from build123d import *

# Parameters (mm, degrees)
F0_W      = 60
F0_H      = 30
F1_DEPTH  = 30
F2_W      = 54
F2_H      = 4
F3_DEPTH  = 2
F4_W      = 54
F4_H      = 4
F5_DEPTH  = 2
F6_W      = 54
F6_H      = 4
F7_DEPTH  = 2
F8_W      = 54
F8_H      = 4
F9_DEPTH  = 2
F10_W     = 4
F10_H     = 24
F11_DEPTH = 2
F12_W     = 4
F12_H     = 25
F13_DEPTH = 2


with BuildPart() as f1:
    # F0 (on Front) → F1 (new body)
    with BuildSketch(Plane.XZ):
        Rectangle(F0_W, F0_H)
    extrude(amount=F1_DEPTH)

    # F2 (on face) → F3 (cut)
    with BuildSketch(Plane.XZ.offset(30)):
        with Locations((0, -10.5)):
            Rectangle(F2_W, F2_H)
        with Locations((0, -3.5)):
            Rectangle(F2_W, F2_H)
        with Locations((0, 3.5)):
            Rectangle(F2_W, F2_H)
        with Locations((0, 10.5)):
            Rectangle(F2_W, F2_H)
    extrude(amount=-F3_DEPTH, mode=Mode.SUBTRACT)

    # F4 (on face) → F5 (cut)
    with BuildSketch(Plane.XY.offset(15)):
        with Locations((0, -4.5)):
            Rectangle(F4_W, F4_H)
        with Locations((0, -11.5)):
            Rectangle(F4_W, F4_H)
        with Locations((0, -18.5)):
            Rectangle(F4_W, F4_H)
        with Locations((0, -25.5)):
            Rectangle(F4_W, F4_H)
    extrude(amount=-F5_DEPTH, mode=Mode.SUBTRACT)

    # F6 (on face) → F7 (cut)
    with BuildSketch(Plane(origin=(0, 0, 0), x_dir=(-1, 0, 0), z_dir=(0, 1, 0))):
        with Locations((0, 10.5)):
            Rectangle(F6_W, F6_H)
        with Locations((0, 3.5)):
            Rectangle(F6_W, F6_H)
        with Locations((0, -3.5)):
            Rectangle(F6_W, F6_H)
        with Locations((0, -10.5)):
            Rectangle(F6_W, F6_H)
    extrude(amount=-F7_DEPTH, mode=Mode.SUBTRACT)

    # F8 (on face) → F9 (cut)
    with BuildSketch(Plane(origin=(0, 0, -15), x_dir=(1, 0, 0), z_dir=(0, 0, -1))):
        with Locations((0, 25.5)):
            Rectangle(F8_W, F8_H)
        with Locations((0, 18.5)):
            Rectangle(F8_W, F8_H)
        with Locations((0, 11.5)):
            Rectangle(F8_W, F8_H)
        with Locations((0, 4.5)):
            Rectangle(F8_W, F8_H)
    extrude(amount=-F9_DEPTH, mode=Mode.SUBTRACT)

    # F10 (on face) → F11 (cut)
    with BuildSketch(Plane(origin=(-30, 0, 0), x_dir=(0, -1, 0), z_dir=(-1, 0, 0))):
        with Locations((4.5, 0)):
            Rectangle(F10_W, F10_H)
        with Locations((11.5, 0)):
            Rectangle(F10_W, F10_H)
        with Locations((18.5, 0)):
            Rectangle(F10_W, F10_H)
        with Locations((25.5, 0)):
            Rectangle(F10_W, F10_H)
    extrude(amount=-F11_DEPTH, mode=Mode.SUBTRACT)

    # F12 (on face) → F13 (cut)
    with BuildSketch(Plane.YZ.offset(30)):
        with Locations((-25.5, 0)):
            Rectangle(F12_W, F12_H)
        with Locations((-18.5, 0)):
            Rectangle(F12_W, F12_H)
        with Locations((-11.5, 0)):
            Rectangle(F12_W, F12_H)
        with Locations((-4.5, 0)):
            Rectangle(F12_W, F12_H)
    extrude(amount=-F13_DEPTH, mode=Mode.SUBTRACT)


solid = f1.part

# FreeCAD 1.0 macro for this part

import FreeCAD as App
import Part
import Sketcher
from FreeCAD import Vector

doc = App.newDocument("Part")
body = doc.addObject("PartDesign::Body", "Body")

# Sketch on XZ plane
sketch1 = doc.addObject("Sketcher::SketchObject", "Sketch")
body.addObject(sketch1)
sketch1.AttachmentSupport = (doc.XZ_Plane, [""])
sketch1.MapMode = "FlatFace"
sketch1.addGeometry([
    Part.LineSegment(Vector(-30, 15, 0), Vector(-30, -15, 0)),
    Part.LineSegment(Vector(-30, -15, 0), Vector(30, -15, 0)),
    Part.LineSegment(Vector(30, -15, 0), Vector(30, 15, 0)),
    Part.LineSegment(Vector(30, 15, 0), Vector(-30, 15, 0)),
], False)
sketch1.addConstraint([
    Sketcher.Constraint("Coincident", 0, 2, 1, 1),
    Sketcher.Constraint("Coincident", 1, 2, 2, 1),
    Sketcher.Constraint("Coincident", 2, 2, 3, 1),
    Sketcher.Constraint("Coincident", 3, 2, 0, 1),
    Sketcher.Constraint("Vertical", 0),
    Sketcher.Constraint("Horizontal", 1),
    Sketcher.Constraint("Vertical", 2),
    Sketcher.Constraint("Horizontal", 3),
    Sketcher.Constraint("Symmetric", 0, 2, 2, 2, -1, 1),
    Sketcher.Constraint("DistanceX", 1, 1, 1, 2, 60.0),
    Sketcher.Constraint("DistanceY", 0, 2, 0, 1, 30.0),
])
pad1 = doc.addObject("PartDesign::Pad", "Pad")
body.addObject(pad1)
pad1.Profile = sketch1
pad1.Length = 30

# Sketch on XZ plane
sketch2 = doc.addObject("Sketcher::SketchObject", "Sketch001")
body.addObject(sketch2)
sketch2.AttachmentSupport = (doc.XZ_Plane, [""])
sketch2.MapMode = "FlatFace"
sketch2.AttachmentOffset = App.Placement(Vector(0, 0, 30), App.Rotation())
sketch2.addGeometry([
    Part.LineSegment(Vector(-27, -8.5, 0), Vector(-27, -12.5, 0)),  # 0
    Part.LineSegment(Vector(-27, -12.5, 0), Vector(27, -12.5, 0)),  # 1
    Part.LineSegment(Vector(27, -12.5, 0), Vector(27, -8.5, 0)),  # 2
    Part.LineSegment(Vector(27, -8.5, 0), Vector(-27, -8.5, 0)),  # 3
    Part.LineSegment(Vector(-27, -1.5, 0), Vector(-27, -5.5, 0)),  # 4
    Part.LineSegment(Vector(-27, -5.5, 0), Vector(27, -5.5, 0)),  # 5
    Part.LineSegment(Vector(27, -5.5, 0), Vector(27, -1.5, 0)),  # 6
    Part.LineSegment(Vector(27, -1.5, 0), Vector(-27, -1.5, 0)),  # 7
    Part.LineSegment(Vector(-27, 5.5, 0), Vector(-27, 1.5, 0)),  # 8
    Part.LineSegment(Vector(-27, 1.5, 0), Vector(27, 1.5, 0)),  # 9
    Part.LineSegment(Vector(27, 1.5, 0), Vector(27, 5.5, 0)),  # 10
    Part.LineSegment(Vector(27, 5.5, 0), Vector(-27, 5.5, 0)),  # 11
    Part.LineSegment(Vector(-27, 12.5, 0), Vector(-27, 8.5, 0)),  # 12
    Part.LineSegment(Vector(-27, 8.5, 0), Vector(27, 8.5, 0)),  # 13
    Part.LineSegment(Vector(27, 8.5, 0), Vector(27, 12.5, 0)),  # 14
    Part.LineSegment(Vector(27, 12.5, 0), Vector(-27, 12.5, 0)),  # 15
], False)
sketch2.addConstraint([
    Sketcher.Constraint("Coincident", 0, 2, 1, 1),
    Sketcher.Constraint("Coincident", 1, 2, 2, 1),
    Sketcher.Constraint("Coincident", 2, 2, 3, 1),
    Sketcher.Constraint("Coincident", 3, 2, 0, 1),
    Sketcher.Constraint("Coincident", 4, 2, 5, 1),
    Sketcher.Constraint("Coincident", 5, 2, 6, 1),
    Sketcher.Constraint("Coincident", 6, 2, 7, 1),
    Sketcher.Constraint("Coincident", 7, 2, 4, 1),
    Sketcher.Constraint("Coincident", 8, 2, 9, 1),
    Sketcher.Constraint("Coincident", 9, 2, 10, 1),
    Sketcher.Constraint("Coincident", 10, 2, 11, 1),
    Sketcher.Constraint("Coincident", 11, 2, 8, 1),
    Sketcher.Constraint("Coincident", 12, 2, 13, 1),
    Sketcher.Constraint("Coincident", 13, 2, 14, 1),
    Sketcher.Constraint("Coincident", 14, 2, 15, 1),
    Sketcher.Constraint("Coincident", 15, 2, 12, 1),
    Sketcher.Constraint("Vertical", 0),
    Sketcher.Constraint("Horizontal", 1),
    Sketcher.Constraint("Vertical", 2),
    Sketcher.Constraint("Horizontal", 3),
    Sketcher.Constraint("Vertical", 4),
    Sketcher.Constraint("Horizontal", 5),
    Sketcher.Constraint("Vertical", 6),
    Sketcher.Constraint("Horizontal", 7),
    Sketcher.Constraint("Vertical", 8),
    Sketcher.Constraint("Horizontal", 9),
    Sketcher.Constraint("Vertical", 10),
    Sketcher.Constraint("Horizontal", 11),
    Sketcher.Constraint("Vertical", 12),
    Sketcher.Constraint("Horizontal", 13),
    Sketcher.Constraint("Vertical", 14),
    Sketcher.Constraint("Horizontal", 15),
    Sketcher.Constraint("Symmetric", 6, 2, 8, 2, -1, 1),
    Sketcher.Constraint("Symmetric", 4, 2, 10, 2, -1, 1),
    Sketcher.Constraint("Symmetric", 2, 2, 12, 2, -1, 1),
    Sketcher.Constraint("Symmetric", 0, 2, 14, 2, -1, 1),
    Sketcher.Constraint("Vertical", 3, 2, 4, 2),
    Sketcher.Constraint("Vertical", 2, 2, 5, 2),
    Sketcher.Constraint("Vertical", 7, 2, 8, 2),
    Sketcher.Constraint("Equal", 2, 4),
    Sketcher.Constraint("DistanceX", 1, 1, 1, 2, 54.0),
    Sketcher.Constraint("DistanceY", 0, 2, 0, 1, 4.0),
    Sketcher.Constraint("DistanceY", 3, 2, 4, 2, 3.0),
    Sketcher.Constraint("DistanceY", 7, 2, 8, 2, 3.0),
])
pocket1 = doc.addObject("PartDesign::Pocket", "Pocket")
body.addObject(pocket1)
pocket1.Profile = sketch2
pocket1.Length = 2

# Sketch on XY plane
sketch3 = doc.addObject("Sketcher::SketchObject", "Sketch002")
body.addObject(sketch3)
sketch3.AttachmentSupport = (doc.XY_Plane, [""])
sketch3.MapMode = "FlatFace"
sketch3.AttachmentOffset = App.Placement(Vector(0, 0, 15), App.Rotation())
sketch3.addGeometry([
    Part.LineSegment(Vector(-27, -2.5, 0), Vector(-27, -6.5, 0)),  # 0
    Part.LineSegment(Vector(-27, -6.5, 0), Vector(27, -6.5, 0)),  # 1
    Part.LineSegment(Vector(27, -6.5, 0), Vector(27, -2.5, 0)),  # 2
    Part.LineSegment(Vector(27, -2.5, 0), Vector(-27, -2.5, 0)),  # 3
    Part.LineSegment(Vector(-27, -9.5, 0), Vector(-27, -13.5, 0)),  # 4
    Part.LineSegment(Vector(-27, -13.5, 0), Vector(27, -13.5, 0)),  # 5
    Part.LineSegment(Vector(27, -13.5, 0), Vector(27, -9.5, 0)),  # 6
    Part.LineSegment(Vector(27, -9.5, 0), Vector(-27, -9.5, 0)),  # 7
    Part.LineSegment(Vector(-27, -16.5, 0), Vector(-27, -20.5, 0)),  # 8
    Part.LineSegment(Vector(-27, -20.5, 0), Vector(27, -20.5, 0)),  # 9
    Part.LineSegment(Vector(27, -20.5, 0), Vector(27, -16.5, 0)),  # 10
    Part.LineSegment(Vector(27, -16.5, 0), Vector(-27, -16.5, 0)),  # 11
    Part.LineSegment(Vector(-27, -23.5, 0), Vector(-27, -27.5, 0)),  # 12
    Part.LineSegment(Vector(-27, -27.5, 0), Vector(27, -27.5, 0)),  # 13
    Part.LineSegment(Vector(27, -27.5, 0), Vector(27, -23.5, 0)),  # 14
    Part.LineSegment(Vector(27, -23.5, 0), Vector(-27, -23.5, 0)),  # 15
], False)
sketch3.addConstraint([
    Sketcher.Constraint("Coincident", 0, 2, 1, 1),
    Sketcher.Constraint("Coincident", 1, 2, 2, 1),
    Sketcher.Constraint("Coincident", 2, 2, 3, 1),
    Sketcher.Constraint("Coincident", 3, 2, 0, 1),
    Sketcher.Constraint("Coincident", 4, 2, 5, 1),
    Sketcher.Constraint("Coincident", 5, 2, 6, 1),
    Sketcher.Constraint("Coincident", 6, 2, 7, 1),
    Sketcher.Constraint("Coincident", 7, 2, 4, 1),
    Sketcher.Constraint("Coincident", 8, 2, 9, 1),
    Sketcher.Constraint("Coincident", 9, 2, 10, 1),
    Sketcher.Constraint("Coincident", 10, 2, 11, 1),
    Sketcher.Constraint("Coincident", 11, 2, 8, 1),
    Sketcher.Constraint("Coincident", 12, 2, 13, 1),
    Sketcher.Constraint("Coincident", 13, 2, 14, 1),
    Sketcher.Constraint("Coincident", 14, 2, 15, 1),
    Sketcher.Constraint("Coincident", 15, 2, 12, 1),
    Sketcher.Constraint("Vertical", 0),
    Sketcher.Constraint("Horizontal", 1),
    Sketcher.Constraint("Vertical", 2),
    Sketcher.Constraint("Horizontal", 3),
    Sketcher.Constraint("Vertical", 4),
    Sketcher.Constraint("Horizontal", 5),
    Sketcher.Constraint("Vertical", 6),
    Sketcher.Constraint("Horizontal", 7),
    Sketcher.Constraint("Vertical", 8),
    Sketcher.Constraint("Horizontal", 9),
    Sketcher.Constraint("Vertical", 10),
    Sketcher.Constraint("Horizontal", 11),
    Sketcher.Constraint("Vertical", 12),
    Sketcher.Constraint("Horizontal", 13),
    Sketcher.Constraint("Vertical", 14),
    Sketcher.Constraint("Horizontal", 15),
    Sketcher.Constraint("Vertical", 3, 2, 4, 2),
    Sketcher.Constraint("Vertical", 2, 2, 5, 2),
    Sketcher.Constraint("Vertical", 7, 2, 8, 2),
    Sketcher.Constraint("Vertical", 6, 2, 9, 2),
    Sketcher.Constraint("Vertical", 11, 2, 12, 2),
    Sketcher.Constraint("Vertical", 10, 2, 13, 2),
    Sketcher.Constraint("Equal", 2, 4),
    Sketcher.Constraint("Equal", 6, 8),
    Sketcher.Constraint("Equal", 10, 12),
    Sketcher.Constraint("DistanceX", 1, 1, 1, 2, 54.0),
    Sketcher.Constraint("DistanceY", 0, 2, 0, 1, 4.0),
    Sketcher.Constraint("DistanceX", 0, 2, -1, 1, 27.0),
    Sketcher.Constraint("DistanceY", 4, 2, 0, 2, 7.0),
    Sketcher.Constraint("DistanceY", 8, 2, 4, 2, 7.0),
    Sketcher.Constraint("DistanceY", 12, 2, 8, 2, 7.0),
    Sketcher.Constraint("DistanceY", 0, 2, -1, 1, 6.5),
])
pocket2 = doc.addObject("PartDesign::Pocket", "Pocket001")
body.addObject(pocket2)
pocket2.Profile = sketch3
pocket2.Length = 2

# Sketch on XZ plane
sketch4 = doc.addObject("Sketcher::SketchObject", "Sketch003")
body.addObject(sketch4)
sketch4.AttachmentSupport = (doc.XZ_Plane, [""])
sketch4.MapMode = "FlatFace"
sketch4.addGeometry([
    Part.LineSegment(Vector(27, 12.5, 0), Vector(27, 8.5, 0)),  # 0
    Part.LineSegment(Vector(27, 8.5, 0), Vector(-27, 8.5, 0)),  # 1
    Part.LineSegment(Vector(-27, 8.5, 0), Vector(-27, 12.5, 0)),  # 2
    Part.LineSegment(Vector(-27, 12.5, 0), Vector(27, 12.5, 0)),  # 3
    Part.LineSegment(Vector(27, 5.5, 0), Vector(27, 1.5, 0)),  # 4
    Part.LineSegment(Vector(27, 1.5, 0), Vector(-27, 1.5, 0)),  # 5
    Part.LineSegment(Vector(-27, 1.5, 0), Vector(-27, 5.5, 0)),  # 6
    Part.LineSegment(Vector(-27, 5.5, 0), Vector(27, 5.5, 0)),  # 7
    Part.LineSegment(Vector(27, -1.5, 0), Vector(27, -5.5, 0)),  # 8
    Part.LineSegment(Vector(27, -5.5, 0), Vector(-27, -5.5, 0)),  # 9
    Part.LineSegment(Vector(-27, -5.5, 0), Vector(-27, -1.5, 0)),  # 10
    Part.LineSegment(Vector(-27, -1.5, 0), Vector(27, -1.5, 0)),  # 11
    Part.LineSegment(Vector(27, -8.5, 0), Vector(27, -12.5, 0)),  # 12
    Part.LineSegment(Vector(27, -12.5, 0), Vector(-27, -12.5, 0)),  # 13
    Part.LineSegment(Vector(-27, -12.5, 0), Vector(-27, -8.5, 0)),  # 14
    Part.LineSegment(Vector(-27, -8.5, 0), Vector(27, -8.5, 0)),  # 15
], False)
sketch4.addConstraint([
    Sketcher.Constraint("Coincident", 0, 2, 1, 1),
    Sketcher.Constraint("Coincident", 1, 2, 2, 1),
    Sketcher.Constraint("Coincident", 2, 2, 3, 1),
    Sketcher.Constraint("Coincident", 3, 2, 0, 1),
    Sketcher.Constraint("Coincident", 4, 2, 5, 1),
    Sketcher.Constraint("Coincident", 5, 2, 6, 1),
    Sketcher.Constraint("Coincident", 6, 2, 7, 1),
    Sketcher.Constraint("Coincident", 7, 2, 4, 1),
    Sketcher.Constraint("Coincident", 8, 2, 9, 1),
    Sketcher.Constraint("Coincident", 9, 2, 10, 1),
    Sketcher.Constraint("Coincident", 10, 2, 11, 1),
    Sketcher.Constraint("Coincident", 11, 2, 8, 1),
    Sketcher.Constraint("Coincident", 12, 2, 13, 1),
    Sketcher.Constraint("Coincident", 13, 2, 14, 1),
    Sketcher.Constraint("Coincident", 14, 2, 15, 1),
    Sketcher.Constraint("Coincident", 15, 2, 12, 1),
    Sketcher.Constraint("Vertical", 0),
    Sketcher.Constraint("Horizontal", 1),
    Sketcher.Constraint("Vertical", 2),
    Sketcher.Constraint("Horizontal", 3),
    Sketcher.Constraint("Vertical", 4),
    Sketcher.Constraint("Horizontal", 5),
    Sketcher.Constraint("Vertical", 6),
    Sketcher.Constraint("Horizontal", 7),
    Sketcher.Constraint("Vertical", 8),
    Sketcher.Constraint("Horizontal", 9),
    Sketcher.Constraint("Vertical", 10),
    Sketcher.Constraint("Horizontal", 11),
    Sketcher.Constraint("Vertical", 12),
    Sketcher.Constraint("Horizontal", 13),
    Sketcher.Constraint("Vertical", 14),
    Sketcher.Constraint("Horizontal", 15),
    Sketcher.Constraint("Symmetric", 6, 2, 8, 2, -1, 1),
    Sketcher.Constraint("Symmetric", 4, 2, 10, 2, -1, 1),
    Sketcher.Constraint("Symmetric", 2, 2, 12, 2, -1, 1),
    Sketcher.Constraint("Symmetric", 0, 2, 14, 2, -1, 1),
    Sketcher.Constraint("Vertical", 3, 2, 4, 2),
    Sketcher.Constraint("Vertical", 2, 2, 5, 2),
    Sketcher.Constraint("Vertical", 7, 2, 8, 2),
    Sketcher.Constraint("Equal", 2, 4),
    Sketcher.Constraint("DistanceX", 1, 2, 1, 1, 54.0),
    Sketcher.Constraint("DistanceY", 0, 2, 0, 1, 4.0),
    Sketcher.Constraint("DistanceY", 4, 2, 0, 2, 7.0),
    Sketcher.Constraint("DistanceY", 8, 2, 4, 2, 7.0),
])
pocket3 = doc.addObject("PartDesign::Pocket", "Pocket002")
body.addObject(pocket3)
pocket3.Profile = sketch4
pocket3.Length = 2
pocket3.Reversed = True

# Sketch on XY plane
sketch5 = doc.addObject("Sketcher::SketchObject", "Sketch004")
body.addObject(sketch5)
sketch5.AttachmentSupport = (doc.XY_Plane, [""])
sketch5.MapMode = "FlatFace"
sketch5.AttachmentOffset = App.Placement(Vector(0, 0, -15), App.Rotation())
sketch5.addGeometry([
    Part.LineSegment(Vector(-27, -27.5, 0), Vector(-27, -23.5, 0)),  # 0
    Part.LineSegment(Vector(-27, -23.5, 0), Vector(27, -23.5, 0)),  # 1
    Part.LineSegment(Vector(27, -23.5, 0), Vector(27, -27.5, 0)),  # 2
    Part.LineSegment(Vector(27, -27.5, 0), Vector(-27, -27.5, 0)),  # 3
    Part.LineSegment(Vector(-27, -20.5, 0), Vector(-27, -16.5, 0)),  # 4
    Part.LineSegment(Vector(-27, -16.5, 0), Vector(27, -16.5, 0)),  # 5
    Part.LineSegment(Vector(27, -16.5, 0), Vector(27, -20.5, 0)),  # 6
    Part.LineSegment(Vector(27, -20.5, 0), Vector(-27, -20.5, 0)),  # 7
    Part.LineSegment(Vector(-27, -13.5, 0), Vector(-27, -9.5, 0)),  # 8
    Part.LineSegment(Vector(-27, -9.5, 0), Vector(27, -9.5, 0)),  # 9
    Part.LineSegment(Vector(27, -9.5, 0), Vector(27, -13.5, 0)),  # 10
    Part.LineSegment(Vector(27, -13.5, 0), Vector(-27, -13.5, 0)),  # 11
    Part.LineSegment(Vector(-27, -6.5, 0), Vector(-27, -2.5, 0)),  # 12
    Part.LineSegment(Vector(-27, -2.5, 0), Vector(27, -2.5, 0)),  # 13
    Part.LineSegment(Vector(27, -2.5, 0), Vector(27, -6.5, 0)),  # 14
    Part.LineSegment(Vector(27, -6.5, 0), Vector(-27, -6.5, 0)),  # 15
], False)
sketch5.addConstraint([
    Sketcher.Constraint("Coincident", 0, 2, 1, 1),
    Sketcher.Constraint("Coincident", 1, 2, 2, 1),
    Sketcher.Constraint("Coincident", 2, 2, 3, 1),
    Sketcher.Constraint("Coincident", 3, 2, 0, 1),
    Sketcher.Constraint("Coincident", 4, 2, 5, 1),
    Sketcher.Constraint("Coincident", 5, 2, 6, 1),
    Sketcher.Constraint("Coincident", 6, 2, 7, 1),
    Sketcher.Constraint("Coincident", 7, 2, 4, 1),
    Sketcher.Constraint("Coincident", 8, 2, 9, 1),
    Sketcher.Constraint("Coincident", 9, 2, 10, 1),
    Sketcher.Constraint("Coincident", 10, 2, 11, 1),
    Sketcher.Constraint("Coincident", 11, 2, 8, 1),
    Sketcher.Constraint("Coincident", 12, 2, 13, 1),
    Sketcher.Constraint("Coincident", 13, 2, 14, 1),
    Sketcher.Constraint("Coincident", 14, 2, 15, 1),
    Sketcher.Constraint("Coincident", 15, 2, 12, 1),
    Sketcher.Constraint("Vertical", 0),
    Sketcher.Constraint("Horizontal", 1),
    Sketcher.Constraint("Vertical", 2),
    Sketcher.Constraint("Horizontal", 3),
    Sketcher.Constraint("Vertical", 4),
    Sketcher.Constraint("Horizontal", 5),
    Sketcher.Constraint("Vertical", 6),
    Sketcher.Constraint("Horizontal", 7),
    Sketcher.Constraint("Vertical", 8),
    Sketcher.Constraint("Horizontal", 9),
    Sketcher.Constraint("Vertical", 10),
    Sketcher.Constraint("Horizontal", 11),
    Sketcher.Constraint("Vertical", 12),
    Sketcher.Constraint("Horizontal", 13),
    Sketcher.Constraint("Vertical", 14),
    Sketcher.Constraint("Horizontal", 15),
    Sketcher.Constraint("Vertical", 3, 2, 4, 2),
    Sketcher.Constraint("Vertical", 2, 2, 5, 2),
    Sketcher.Constraint("Vertical", 7, 2, 8, 2),
    Sketcher.Constraint("Vertical", 6, 2, 9, 2),
    Sketcher.Constraint("Vertical", 11, 2, 12, 2),
    Sketcher.Constraint("Vertical", 10, 2, 13, 2),
    Sketcher.Constraint("Equal", 2, 4),
    Sketcher.Constraint("Equal", 6, 8),
    Sketcher.Constraint("Equal", 10, 12),
    Sketcher.Constraint("DistanceX", 1, 1, 1, 2, 54.0),
    Sketcher.Constraint("DistanceY", 0, 1, 0, 2, 4.0),
    Sketcher.Constraint("DistanceX", 0, 2, -1, 1, 27.0),
    Sketcher.Constraint("DistanceY", 0, 2, 4, 2, 7.0),
    Sketcher.Constraint("DistanceY", 4, 2, 8, 2, 7.0),
    Sketcher.Constraint("DistanceY", 8, 2, 12, 2, 7.0),
    Sketcher.Constraint("DistanceY", 0, 2, -1, 1, 23.5),
])
pocket4 = doc.addObject("PartDesign::Pocket", "Pocket003")
body.addObject(pocket4)
pocket4.Profile = sketch5
pocket4.Length = 2
pocket4.Reversed = True

# Sketch on YZ plane
sketch6 = doc.addObject("Sketcher::SketchObject", "Sketch005")
body.addObject(sketch6)
sketch6.AttachmentSupport = (doc.YZ_Plane, [""])
sketch6.MapMode = "FlatFace"
sketch6.AttachmentOffset = App.Placement(Vector(0, 0, -30), App.Rotation())
sketch6.addGeometry([
    Part.LineSegment(Vector(-2.5, 12, 0), Vector(-2.5, -12, 0)),  # 0
    Part.LineSegment(Vector(-2.5, -12, 0), Vector(-6.5, -12, 0)),  # 1
    Part.LineSegment(Vector(-6.5, -12, 0), Vector(-6.5, 12, 0)),  # 2
    Part.LineSegment(Vector(-6.5, 12, 0), Vector(-2.5, 12, 0)),  # 3
    Part.LineSegment(Vector(-9.5, 12, 0), Vector(-9.5, -12, 0)),  # 4
    Part.LineSegment(Vector(-9.5, -12, 0), Vector(-13.5, -12, 0)),  # 5
    Part.LineSegment(Vector(-13.5, -12, 0), Vector(-13.5, 12, 0)),  # 6
    Part.LineSegment(Vector(-13.5, 12, 0), Vector(-9.5, 12, 0)),  # 7
    Part.LineSegment(Vector(-16.5, 12, 0), Vector(-16.5, -12, 0)),  # 8
    Part.LineSegment(Vector(-16.5, -12, 0), Vector(-20.5, -12, 0)),  # 9
    Part.LineSegment(Vector(-20.5, -12, 0), Vector(-20.5, 12, 0)),  # 10
    Part.LineSegment(Vector(-20.5, 12, 0), Vector(-16.5, 12, 0)),  # 11
    Part.LineSegment(Vector(-23.5, 12, 0), Vector(-23.5, -12, 0)),  # 12
    Part.LineSegment(Vector(-23.5, -12, 0), Vector(-27.5, -12, 0)),  # 13
    Part.LineSegment(Vector(-27.5, -12, 0), Vector(-27.5, 12, 0)),  # 14
    Part.LineSegment(Vector(-27.5, 12, 0), Vector(-23.5, 12, 0)),  # 15
], False)
sketch6.addConstraint([
    Sketcher.Constraint("Coincident", 0, 2, 1, 1),
    Sketcher.Constraint("Coincident", 1, 2, 2, 1),
    Sketcher.Constraint("Coincident", 2, 2, 3, 1),
    Sketcher.Constraint("Coincident", 3, 2, 0, 1),
    Sketcher.Constraint("Coincident", 4, 2, 5, 1),
    Sketcher.Constraint("Coincident", 5, 2, 6, 1),
    Sketcher.Constraint("Coincident", 6, 2, 7, 1),
    Sketcher.Constraint("Coincident", 7, 2, 4, 1),
    Sketcher.Constraint("Coincident", 8, 2, 9, 1),
    Sketcher.Constraint("Coincident", 9, 2, 10, 1),
    Sketcher.Constraint("Coincident", 10, 2, 11, 1),
    Sketcher.Constraint("Coincident", 11, 2, 8, 1),
    Sketcher.Constraint("Coincident", 12, 2, 13, 1),
    Sketcher.Constraint("Coincident", 13, 2, 14, 1),
    Sketcher.Constraint("Coincident", 14, 2, 15, 1),
    Sketcher.Constraint("Coincident", 15, 2, 12, 1),
    Sketcher.Constraint("Vertical", 0),
    Sketcher.Constraint("Horizontal", 1),
    Sketcher.Constraint("Vertical", 2),
    Sketcher.Constraint("Horizontal", 3),
    Sketcher.Constraint("Vertical", 4),
    Sketcher.Constraint("Horizontal", 5),
    Sketcher.Constraint("Vertical", 6),
    Sketcher.Constraint("Horizontal", 7),
    Sketcher.Constraint("Vertical", 8),
    Sketcher.Constraint("Horizontal", 9),
    Sketcher.Constraint("Vertical", 10),
    Sketcher.Constraint("Horizontal", 11),
    Sketcher.Constraint("Vertical", 12),
    Sketcher.Constraint("Horizontal", 13),
    Sketcher.Constraint("Vertical", 14),
    Sketcher.Constraint("Horizontal", 15),
    Sketcher.Constraint("Horizontal", 1, 2, 4, 2),
    Sketcher.Constraint("Horizontal", 3, 2, 6, 2),
    Sketcher.Constraint("Horizontal", 5, 2, 8, 2),
    Sketcher.Constraint("Horizontal", 7, 2, 10, 2),
    Sketcher.Constraint("Horizontal", 9, 2, 12, 2),
    Sketcher.Constraint("Horizontal", 11, 2, 14, 2),
    Sketcher.Constraint("Equal", 3, 5),
    Sketcher.Constraint("Equal", 7, 9),
    Sketcher.Constraint("Equal", 11, 13),
    Sketcher.Constraint("DistanceX", 1, 2, 1, 1, 4.0),
    Sketcher.Constraint("DistanceY", 0, 2, 0, 1, 24.0),
    Sketcher.Constraint("DistanceY", 0, 2, -1, 1, 12.0),
    Sketcher.Constraint("DistanceX", 4, 2, 1, 2, 3.0),
    Sketcher.Constraint("DistanceX", 8, 2, 5, 2, 3.0),
    Sketcher.Constraint("DistanceX", 12, 2, 9, 2, 3.0),
    Sketcher.Constraint("DistanceX", 0, 2, -1, 1, 2.5),
])
pocket5 = doc.addObject("PartDesign::Pocket", "Pocket004")
body.addObject(pocket5)
pocket5.Profile = sketch6
pocket5.Length = 2
pocket5.Reversed = True

# Sketch on YZ plane
sketch7 = doc.addObject("Sketcher::SketchObject", "Sketch006")
body.addObject(sketch7)
sketch7.AttachmentSupport = (doc.YZ_Plane, [""])
sketch7.MapMode = "FlatFace"
sketch7.AttachmentOffset = App.Placement(Vector(0, 0, 30), App.Rotation())
sketch7.addGeometry([
    Part.LineSegment(Vector(-27.5, 12.5, 0), Vector(-27.5, -12.5, 0)),  # 0
    Part.LineSegment(Vector(-27.5, -12.5, 0), Vector(-23.5, -12.5, 0)),  # 1
    Part.LineSegment(Vector(-23.5, -12.5, 0), Vector(-23.5, 12.5, 0)),  # 2
    Part.LineSegment(Vector(-23.5, 12.5, 0), Vector(-27.5, 12.5, 0)),  # 3
    Part.LineSegment(Vector(-20.5, 12.5, 0), Vector(-20.5, -12.5, 0)),  # 4
    Part.LineSegment(Vector(-20.5, -12.5, 0), Vector(-16.5, -12.5, 0)),  # 5
    Part.LineSegment(Vector(-16.5, -12.5, 0), Vector(-16.5, 12.5, 0)),  # 6
    Part.LineSegment(Vector(-16.5, 12.5, 0), Vector(-20.5, 12.5, 0)),  # 7
    Part.LineSegment(Vector(-13.5, 12.5, 0), Vector(-13.5, -12.5, 0)),  # 8
    Part.LineSegment(Vector(-13.5, -12.5, 0), Vector(-9.5, -12.5, 0)),  # 9
    Part.LineSegment(Vector(-9.5, -12.5, 0), Vector(-9.5, 12.5, 0)),  # 10
    Part.LineSegment(Vector(-9.5, 12.5, 0), Vector(-13.5, 12.5, 0)),  # 11
    Part.LineSegment(Vector(-6.5, 12.5, 0), Vector(-6.5, -12.5, 0)),  # 12
    Part.LineSegment(Vector(-6.5, -12.5, 0), Vector(-2.5, -12.5, 0)),  # 13
    Part.LineSegment(Vector(-2.5, -12.5, 0), Vector(-2.5, 12.5, 0)),  # 14
    Part.LineSegment(Vector(-2.5, 12.5, 0), Vector(-6.5, 12.5, 0)),  # 15
], False)
sketch7.addConstraint([
    Sketcher.Constraint("Coincident", 0, 2, 1, 1),
    Sketcher.Constraint("Coincident", 1, 2, 2, 1),
    Sketcher.Constraint("Coincident", 2, 2, 3, 1),
    Sketcher.Constraint("Coincident", 3, 2, 0, 1),
    Sketcher.Constraint("Coincident", 4, 2, 5, 1),
    Sketcher.Constraint("Coincident", 5, 2, 6, 1),
    Sketcher.Constraint("Coincident", 6, 2, 7, 1),
    Sketcher.Constraint("Coincident", 7, 2, 4, 1),
    Sketcher.Constraint("Coincident", 8, 2, 9, 1),
    Sketcher.Constraint("Coincident", 9, 2, 10, 1),
    Sketcher.Constraint("Coincident", 10, 2, 11, 1),
    Sketcher.Constraint("Coincident", 11, 2, 8, 1),
    Sketcher.Constraint("Coincident", 12, 2, 13, 1),
    Sketcher.Constraint("Coincident", 13, 2, 14, 1),
    Sketcher.Constraint("Coincident", 14, 2, 15, 1),
    Sketcher.Constraint("Coincident", 15, 2, 12, 1),
    Sketcher.Constraint("Vertical", 0),
    Sketcher.Constraint("Horizontal", 1),
    Sketcher.Constraint("Vertical", 2),
    Sketcher.Constraint("Horizontal", 3),
    Sketcher.Constraint("Vertical", 4),
    Sketcher.Constraint("Horizontal", 5),
    Sketcher.Constraint("Vertical", 6),
    Sketcher.Constraint("Horizontal", 7),
    Sketcher.Constraint("Vertical", 8),
    Sketcher.Constraint("Horizontal", 9),
    Sketcher.Constraint("Vertical", 10),
    Sketcher.Constraint("Horizontal", 11),
    Sketcher.Constraint("Vertical", 12),
    Sketcher.Constraint("Horizontal", 13),
    Sketcher.Constraint("Vertical", 14),
    Sketcher.Constraint("Horizontal", 15),
    Sketcher.Constraint("Horizontal", 1, 2, 4, 2),
    Sketcher.Constraint("Horizontal", 3, 2, 6, 2),
    Sketcher.Constraint("Horizontal", 5, 2, 8, 2),
    Sketcher.Constraint("Horizontal", 7, 2, 10, 2),
    Sketcher.Constraint("Horizontal", 9, 2, 12, 2),
    Sketcher.Constraint("Horizontal", 11, 2, 14, 2),
    Sketcher.Constraint("Equal", 3, 5),
    Sketcher.Constraint("Equal", 7, 9),
    Sketcher.Constraint("Equal", 11, 13),
    Sketcher.Constraint("DistanceX", 1, 1, 1, 2, 4.0),
    Sketcher.Constraint("DistanceY", 0, 2, 0, 1, 25.0),
    Sketcher.Constraint("DistanceX", 1, 2, 4, 2, 3.0),
    Sketcher.Constraint("DistanceX", 5, 2, 8, 2, 3.0),
    Sketcher.Constraint("DistanceX", 9, 2, 12, 2, 3.0),
    Sketcher.Constraint("DistanceX", 0, 2, -1, 1, 27.5),
    Sketcher.Constraint("DistanceY", 0, 2, -1, 1, 12.5),
])
pocket6 = doc.addObject("PartDesign::Pocket", "Pocket005")
body.addObject(pocket6)
pocket6.Profile = sketch7
pocket6.Length = 2

doc.recompute()
